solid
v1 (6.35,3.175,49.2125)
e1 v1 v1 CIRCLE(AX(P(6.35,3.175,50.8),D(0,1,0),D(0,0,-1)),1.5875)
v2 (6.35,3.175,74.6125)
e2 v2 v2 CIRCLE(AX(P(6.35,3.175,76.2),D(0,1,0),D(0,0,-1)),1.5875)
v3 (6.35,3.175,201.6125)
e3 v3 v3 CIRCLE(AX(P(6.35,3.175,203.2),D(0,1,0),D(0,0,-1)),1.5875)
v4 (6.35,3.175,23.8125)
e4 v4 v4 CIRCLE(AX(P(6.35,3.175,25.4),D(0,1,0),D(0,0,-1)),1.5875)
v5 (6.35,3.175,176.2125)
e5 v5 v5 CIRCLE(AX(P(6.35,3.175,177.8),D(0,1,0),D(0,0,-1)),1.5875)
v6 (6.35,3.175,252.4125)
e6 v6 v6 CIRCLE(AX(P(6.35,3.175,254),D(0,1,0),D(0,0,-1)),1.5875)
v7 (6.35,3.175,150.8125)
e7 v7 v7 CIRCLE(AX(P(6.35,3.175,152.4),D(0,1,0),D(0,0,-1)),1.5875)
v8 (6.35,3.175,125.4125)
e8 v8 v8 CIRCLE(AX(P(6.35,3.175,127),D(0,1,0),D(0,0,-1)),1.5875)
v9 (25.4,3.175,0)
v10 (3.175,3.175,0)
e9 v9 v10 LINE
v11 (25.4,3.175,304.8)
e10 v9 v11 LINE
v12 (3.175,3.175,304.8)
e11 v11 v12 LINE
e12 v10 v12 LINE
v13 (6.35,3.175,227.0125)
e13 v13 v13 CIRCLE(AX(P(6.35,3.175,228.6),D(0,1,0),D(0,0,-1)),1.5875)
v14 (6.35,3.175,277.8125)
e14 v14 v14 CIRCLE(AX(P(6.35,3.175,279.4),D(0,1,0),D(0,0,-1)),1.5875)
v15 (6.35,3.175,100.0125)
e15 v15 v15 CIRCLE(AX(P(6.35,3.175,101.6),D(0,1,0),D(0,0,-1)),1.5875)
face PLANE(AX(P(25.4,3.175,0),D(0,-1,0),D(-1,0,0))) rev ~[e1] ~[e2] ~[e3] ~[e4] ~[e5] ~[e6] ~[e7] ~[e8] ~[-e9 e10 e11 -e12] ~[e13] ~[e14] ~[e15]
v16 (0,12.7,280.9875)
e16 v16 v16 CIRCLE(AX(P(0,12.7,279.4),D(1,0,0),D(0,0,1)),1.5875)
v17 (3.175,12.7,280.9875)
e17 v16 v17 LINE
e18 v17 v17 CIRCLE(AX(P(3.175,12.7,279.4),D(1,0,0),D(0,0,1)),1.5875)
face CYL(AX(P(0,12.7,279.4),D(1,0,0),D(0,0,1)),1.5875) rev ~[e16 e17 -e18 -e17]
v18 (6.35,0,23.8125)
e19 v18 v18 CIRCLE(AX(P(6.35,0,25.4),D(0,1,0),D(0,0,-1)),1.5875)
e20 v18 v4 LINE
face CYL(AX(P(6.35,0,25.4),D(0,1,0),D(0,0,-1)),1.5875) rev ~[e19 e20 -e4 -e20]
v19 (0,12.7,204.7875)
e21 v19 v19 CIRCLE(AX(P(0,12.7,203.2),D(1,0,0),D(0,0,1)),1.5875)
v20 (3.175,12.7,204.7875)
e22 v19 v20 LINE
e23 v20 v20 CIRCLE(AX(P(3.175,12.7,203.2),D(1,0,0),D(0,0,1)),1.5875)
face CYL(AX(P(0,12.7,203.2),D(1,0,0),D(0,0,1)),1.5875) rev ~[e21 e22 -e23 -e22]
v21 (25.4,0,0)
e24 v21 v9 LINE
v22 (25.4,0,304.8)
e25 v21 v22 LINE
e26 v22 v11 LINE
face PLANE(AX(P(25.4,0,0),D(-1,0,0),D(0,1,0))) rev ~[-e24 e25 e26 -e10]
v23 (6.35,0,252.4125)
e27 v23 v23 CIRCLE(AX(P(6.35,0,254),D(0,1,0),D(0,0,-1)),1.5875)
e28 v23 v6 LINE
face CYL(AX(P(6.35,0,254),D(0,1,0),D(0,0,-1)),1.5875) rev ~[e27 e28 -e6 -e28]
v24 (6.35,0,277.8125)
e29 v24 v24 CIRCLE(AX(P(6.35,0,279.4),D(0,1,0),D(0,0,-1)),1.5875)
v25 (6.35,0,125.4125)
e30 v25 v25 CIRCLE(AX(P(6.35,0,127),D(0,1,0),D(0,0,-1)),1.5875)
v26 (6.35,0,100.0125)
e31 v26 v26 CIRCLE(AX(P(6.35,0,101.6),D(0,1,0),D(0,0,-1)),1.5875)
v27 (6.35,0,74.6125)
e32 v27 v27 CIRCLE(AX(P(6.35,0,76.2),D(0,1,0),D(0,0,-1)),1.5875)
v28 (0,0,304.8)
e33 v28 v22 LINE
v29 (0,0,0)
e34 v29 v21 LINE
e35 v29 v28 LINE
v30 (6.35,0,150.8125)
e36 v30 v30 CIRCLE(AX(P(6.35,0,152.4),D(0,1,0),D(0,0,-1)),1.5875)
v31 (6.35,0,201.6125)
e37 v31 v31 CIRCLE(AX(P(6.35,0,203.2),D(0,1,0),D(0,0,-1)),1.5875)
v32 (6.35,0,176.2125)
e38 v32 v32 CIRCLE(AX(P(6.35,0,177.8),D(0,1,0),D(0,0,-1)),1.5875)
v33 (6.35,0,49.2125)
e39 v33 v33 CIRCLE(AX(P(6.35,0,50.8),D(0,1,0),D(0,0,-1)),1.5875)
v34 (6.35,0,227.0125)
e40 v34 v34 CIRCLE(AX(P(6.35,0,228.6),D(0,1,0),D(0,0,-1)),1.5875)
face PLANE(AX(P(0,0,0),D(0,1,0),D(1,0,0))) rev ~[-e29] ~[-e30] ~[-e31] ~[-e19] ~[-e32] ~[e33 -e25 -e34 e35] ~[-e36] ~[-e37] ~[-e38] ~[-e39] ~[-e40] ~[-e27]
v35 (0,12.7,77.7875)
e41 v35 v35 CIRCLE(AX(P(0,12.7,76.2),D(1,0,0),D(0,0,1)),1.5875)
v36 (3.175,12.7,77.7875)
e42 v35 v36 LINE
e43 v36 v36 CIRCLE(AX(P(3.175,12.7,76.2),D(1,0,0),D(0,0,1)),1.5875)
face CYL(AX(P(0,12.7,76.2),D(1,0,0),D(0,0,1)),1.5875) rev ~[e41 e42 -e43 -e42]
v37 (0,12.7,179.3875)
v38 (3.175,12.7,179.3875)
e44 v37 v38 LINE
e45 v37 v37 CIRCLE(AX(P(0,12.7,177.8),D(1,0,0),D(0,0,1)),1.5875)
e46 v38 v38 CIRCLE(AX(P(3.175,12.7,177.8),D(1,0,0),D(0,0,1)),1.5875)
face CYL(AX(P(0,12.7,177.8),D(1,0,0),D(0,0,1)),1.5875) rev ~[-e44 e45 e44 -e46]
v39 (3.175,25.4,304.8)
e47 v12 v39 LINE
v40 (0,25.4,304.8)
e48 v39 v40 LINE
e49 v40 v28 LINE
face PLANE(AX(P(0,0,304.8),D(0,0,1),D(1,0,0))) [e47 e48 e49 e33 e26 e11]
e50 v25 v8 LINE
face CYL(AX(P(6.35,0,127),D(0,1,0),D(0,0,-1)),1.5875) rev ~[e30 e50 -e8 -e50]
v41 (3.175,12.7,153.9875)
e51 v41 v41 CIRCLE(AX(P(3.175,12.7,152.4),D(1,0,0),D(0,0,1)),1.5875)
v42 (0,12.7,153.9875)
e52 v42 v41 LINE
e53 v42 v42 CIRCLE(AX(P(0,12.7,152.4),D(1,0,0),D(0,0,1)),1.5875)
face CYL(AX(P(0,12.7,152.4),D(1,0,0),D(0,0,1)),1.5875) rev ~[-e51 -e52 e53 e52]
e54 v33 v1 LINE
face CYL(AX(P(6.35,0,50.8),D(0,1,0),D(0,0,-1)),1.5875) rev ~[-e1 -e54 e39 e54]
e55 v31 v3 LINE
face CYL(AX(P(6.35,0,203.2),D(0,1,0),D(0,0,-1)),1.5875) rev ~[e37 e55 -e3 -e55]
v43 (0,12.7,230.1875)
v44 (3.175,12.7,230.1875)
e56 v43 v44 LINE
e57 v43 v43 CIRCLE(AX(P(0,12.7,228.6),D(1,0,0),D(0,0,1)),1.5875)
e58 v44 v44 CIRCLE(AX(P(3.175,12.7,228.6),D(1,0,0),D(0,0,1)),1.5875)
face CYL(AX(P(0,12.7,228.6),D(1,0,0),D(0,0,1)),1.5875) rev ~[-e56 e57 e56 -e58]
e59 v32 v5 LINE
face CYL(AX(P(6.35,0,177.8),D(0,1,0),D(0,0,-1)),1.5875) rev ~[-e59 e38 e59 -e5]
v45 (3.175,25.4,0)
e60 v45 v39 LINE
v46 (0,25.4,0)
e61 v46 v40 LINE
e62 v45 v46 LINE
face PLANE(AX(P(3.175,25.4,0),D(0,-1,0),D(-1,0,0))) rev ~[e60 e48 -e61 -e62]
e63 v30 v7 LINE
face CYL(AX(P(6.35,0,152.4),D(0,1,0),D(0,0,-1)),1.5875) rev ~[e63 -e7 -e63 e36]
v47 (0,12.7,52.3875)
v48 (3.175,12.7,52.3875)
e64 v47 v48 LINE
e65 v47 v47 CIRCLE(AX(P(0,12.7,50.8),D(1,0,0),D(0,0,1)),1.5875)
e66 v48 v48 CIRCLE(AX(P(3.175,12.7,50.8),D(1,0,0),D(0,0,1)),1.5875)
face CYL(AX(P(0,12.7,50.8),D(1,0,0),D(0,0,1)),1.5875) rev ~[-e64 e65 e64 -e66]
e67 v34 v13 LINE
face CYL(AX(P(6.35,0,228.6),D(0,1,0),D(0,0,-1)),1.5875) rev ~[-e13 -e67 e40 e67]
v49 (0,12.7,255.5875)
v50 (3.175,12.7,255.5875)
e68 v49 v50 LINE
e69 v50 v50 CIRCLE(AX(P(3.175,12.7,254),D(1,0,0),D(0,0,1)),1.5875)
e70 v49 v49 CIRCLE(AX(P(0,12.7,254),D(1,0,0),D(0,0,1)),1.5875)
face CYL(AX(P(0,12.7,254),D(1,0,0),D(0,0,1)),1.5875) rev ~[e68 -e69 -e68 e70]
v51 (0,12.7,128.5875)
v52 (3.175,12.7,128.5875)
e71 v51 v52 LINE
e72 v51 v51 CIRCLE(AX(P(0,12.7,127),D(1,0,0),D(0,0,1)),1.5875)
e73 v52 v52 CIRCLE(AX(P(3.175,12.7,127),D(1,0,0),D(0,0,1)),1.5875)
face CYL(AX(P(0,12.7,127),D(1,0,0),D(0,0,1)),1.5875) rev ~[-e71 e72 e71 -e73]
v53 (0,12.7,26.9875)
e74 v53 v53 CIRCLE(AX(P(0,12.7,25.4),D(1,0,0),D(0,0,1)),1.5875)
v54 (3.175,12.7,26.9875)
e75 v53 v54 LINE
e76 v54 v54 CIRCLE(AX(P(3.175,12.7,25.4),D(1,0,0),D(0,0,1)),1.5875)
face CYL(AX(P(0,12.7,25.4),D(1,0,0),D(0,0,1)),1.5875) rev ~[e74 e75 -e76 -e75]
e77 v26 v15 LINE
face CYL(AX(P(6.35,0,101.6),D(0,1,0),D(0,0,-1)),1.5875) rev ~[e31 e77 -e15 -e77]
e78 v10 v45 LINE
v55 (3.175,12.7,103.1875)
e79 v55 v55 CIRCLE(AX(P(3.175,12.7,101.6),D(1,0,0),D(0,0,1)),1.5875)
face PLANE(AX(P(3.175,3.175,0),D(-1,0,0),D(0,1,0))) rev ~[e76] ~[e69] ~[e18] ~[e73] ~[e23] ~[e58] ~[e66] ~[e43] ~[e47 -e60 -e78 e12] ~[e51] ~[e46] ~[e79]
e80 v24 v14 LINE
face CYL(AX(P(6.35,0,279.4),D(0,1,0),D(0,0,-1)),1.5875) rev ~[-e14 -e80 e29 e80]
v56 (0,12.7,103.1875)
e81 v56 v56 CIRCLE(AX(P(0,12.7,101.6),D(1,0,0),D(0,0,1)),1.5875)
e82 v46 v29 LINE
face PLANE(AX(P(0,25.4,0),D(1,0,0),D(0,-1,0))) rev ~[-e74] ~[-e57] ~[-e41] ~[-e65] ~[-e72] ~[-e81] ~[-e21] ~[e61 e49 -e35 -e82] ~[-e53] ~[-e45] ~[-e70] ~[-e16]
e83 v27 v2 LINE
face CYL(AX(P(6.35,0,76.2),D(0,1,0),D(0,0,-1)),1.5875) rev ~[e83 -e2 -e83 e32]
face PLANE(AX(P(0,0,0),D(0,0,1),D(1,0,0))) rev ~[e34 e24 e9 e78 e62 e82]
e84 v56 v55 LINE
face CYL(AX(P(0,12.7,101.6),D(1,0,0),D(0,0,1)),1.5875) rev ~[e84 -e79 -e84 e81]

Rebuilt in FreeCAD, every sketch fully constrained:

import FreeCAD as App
import Part
import Sketcher
Q = App.Units.Quantity


def add_polygon(sketch, points):
    """Adds a closed chain of lines whose ends are joined by coincident constraints."""
    first, n = sketch.GeometryCount, len(points)
    for a, b in zip(points, points[1:] + points[:1]):
        sketch.addGeometry(Part.LineSegment(App.Vector(*a, 0), App.Vector(*b, 0)), False)
    for i in range(n):
        sketch.addConstraint(Sketcher.Constraint("Coincident", first + i, 2, first + (i + 1) % n, 1))

doc = App.newDocument("Part")
body = doc.addObject("PartDesign::Body", "Body")

# Sketch on XY plane
sketch1 = body.newObject("Sketcher::SketchObject", "Sketch")
sketch1.AttachmentSupport = (doc.getObject("XY_Plane"), [""])
sketch1.MapMode = "FlatFace"
add_polygon(sketch1, [(3.2, 25.4), (0, 25.4), (0, 0), (25.4, 0), (25.4, 3.2), (3.2, 3.2)])  # lines 0-5
sketch1.addConstraint([
    Sketcher.Constraint("Horizontal", 0),
    Sketcher.Constraint("Vertical", 1),
    Sketcher.Constraint("Horizontal", 2),
    Sketcher.Constraint("Vertical", 3),
    Sketcher.Constraint("Horizontal", 4),
    Sketcher.Constraint("Vertical", 5),
    Sketcher.Constraint("Coincident", 1, 2, -1, 1),
    Sketcher.Constraint("Equal", 2, 1),
    Sketcher.Constraint("Equal", 0, 3),
    Sketcher.Constraint("DistanceX", 2, 1, 2, 2, Q("1 in")),
    Sketcher.Constraint("DistanceX", 0, 2, 0, 1, Q("0.125 in")),
])
pad1 = body.newObject("PartDesign::Pad", "Pad")
pad1.Profile = sketch1
pad1.Length = Q("12 in")

# Sketch on XZ plane
sketch2 = body.newObject("Sketcher::SketchObject", "Sketch001")
sketch2.AttachmentSupport = (doc.getObject("XZ_Plane"), [""])
sketch2.MapMode = "FlatFace"
sketch2.addGeometry(Part.Circle(App.Vector(6.3, 25.4, 0), App.Vector(0, 0, 1), 1.6), False)
sketch2.addConstraint([
    Sketcher.Constraint("Diameter", 0, Q("0.125 in")),
    Sketcher.Constraint("DistanceY", -1, 1, 0, 3, Q("1 in")),
    Sketcher.Constraint("DistanceX", -1, 1, 0, 3, Q("0.25 in")),
])
doc.recompute()
hole = body.newObject("PartDesign::Hole", "Hole")
hole.Profile = sketch2
hole.ThreadType = "None"
hole.Diameter = Q("0.125 in")
hole.DepthType = "ThroughAll"

# Sketch on YZ plane
sketch3 = body.newObject("Sketcher::SketchObject", "Sketch002")
sketch3.AttachmentSupport = (doc.getObject("YZ_Plane"), [""])
sketch3.MapMode = "FlatFace"
sketch3.addGeometry(Part.Circle(App.Vector(12.7, 25.4, 0), App.Vector(0, 0, 1), 1.6), False)
sketch3.addConstraint([
    Sketcher.Constraint("Diameter", 0, Q("0.125 in")),
    Sketcher.Constraint("DistanceY", -1, 1, 0, 3, Q("1 in")),
    Sketcher.Constraint("DistanceX", -1, 1, 0, 3, Q("0.5 in")),
])
doc.recompute()
hole2 = body.newObject("PartDesign::Hole", "Hole001")
hole2.Profile = sketch3
hole2.ThreadType = "None"
hole2.Diameter = Q("0.125 in")
hole2.DepthType = "ThroughAll"
hole2.Reversed = True
doc.recompute()

linearpattern = body.newObject("PartDesign::LinearPattern", "LinearPattern")
linearpattern.Originals = [hole]
linearpattern.Direction = (doc.getObject("Z_Axis"), [""])
linearpattern.Mode = "offset"
linearpattern.Offset = Q("1 in")
linearpattern.Occurrences = 11
body.Tip = linearpattern
doc.recompute()

linearpattern2 = body.newObject("PartDesign::LinearPattern", "LinearPattern001")
linearpattern2.Originals = [hole2]
linearpattern2.Direction = (doc.getObject("Z_Axis"), [""])
linearpattern2.Mode = "offset"
linearpattern2.Offset = Q("1 in")
linearpattern2.Occurrences = 11
body.Tip = linearpattern2

doc.recompute()
